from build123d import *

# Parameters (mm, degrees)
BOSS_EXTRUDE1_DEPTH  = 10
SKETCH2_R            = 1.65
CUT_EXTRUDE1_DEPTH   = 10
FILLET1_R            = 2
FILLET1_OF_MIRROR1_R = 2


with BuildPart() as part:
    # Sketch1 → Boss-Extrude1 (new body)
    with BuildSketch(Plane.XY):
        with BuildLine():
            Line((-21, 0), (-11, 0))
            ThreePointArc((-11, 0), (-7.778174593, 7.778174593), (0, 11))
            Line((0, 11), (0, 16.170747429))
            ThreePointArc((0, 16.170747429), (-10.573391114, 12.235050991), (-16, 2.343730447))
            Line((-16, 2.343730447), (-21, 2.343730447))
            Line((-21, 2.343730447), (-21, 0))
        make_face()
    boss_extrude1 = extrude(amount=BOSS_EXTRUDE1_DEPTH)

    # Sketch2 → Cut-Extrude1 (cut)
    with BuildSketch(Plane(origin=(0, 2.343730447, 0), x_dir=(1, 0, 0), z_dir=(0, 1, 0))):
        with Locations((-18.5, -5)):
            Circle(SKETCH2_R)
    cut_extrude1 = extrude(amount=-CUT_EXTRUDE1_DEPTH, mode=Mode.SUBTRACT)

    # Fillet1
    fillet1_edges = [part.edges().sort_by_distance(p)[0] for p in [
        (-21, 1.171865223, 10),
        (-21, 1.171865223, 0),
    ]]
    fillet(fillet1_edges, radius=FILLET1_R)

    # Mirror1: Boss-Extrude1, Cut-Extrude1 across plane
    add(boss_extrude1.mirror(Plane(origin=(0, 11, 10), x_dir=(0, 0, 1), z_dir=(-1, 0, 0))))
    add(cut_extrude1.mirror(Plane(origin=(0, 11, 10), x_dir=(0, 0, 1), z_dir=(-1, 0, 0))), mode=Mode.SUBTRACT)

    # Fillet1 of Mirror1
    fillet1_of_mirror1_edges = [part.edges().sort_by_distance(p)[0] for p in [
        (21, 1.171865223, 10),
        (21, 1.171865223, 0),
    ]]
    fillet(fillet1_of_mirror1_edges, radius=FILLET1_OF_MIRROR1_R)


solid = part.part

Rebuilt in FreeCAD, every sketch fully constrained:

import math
import FreeCAD as App
import Part
import Sketcher


def edges_at(feature, points):
    """Names of the edges that pass closest to the given points."""
    edges = feature.Shape.Edges
    near = lambda p: min(range(len(edges)), key=lambda i: edges[i].distToShape(Part.Vertex(*p))[0])
    return sorted({f"Edge{near(p) + 1}" for p in points})

doc = App.newDocument("Part")
body = doc.addObject("PartDesign::Body", "Body")

# Sketch on XY plane
sketch1 = doc.addObject("Sketcher::SketchObject", "Sketch")
body.addObject(sketch1)
sketch1.AttachmentSupport = (doc.XY_Plane, [""])
sketch1.MapMode = "FlatFace"
sketch1.addGeometry(Part.LineSegment(App.Vector(-21, 0, 0), App.Vector(-11, 0, 0)), False)
sketch1.addGeometry(Part.ArcOfCircle(Part.Circle(App.Vector(0, 0, 0), App.Vector(0, 0, 1), 11), math.radians(90), math.radians(180)), False)
sketch1.addGeometry(Part.LineSegment(App.Vector(0, 11, 0), App.Vector(0, 16.2, 0)), False)
sketch1.addGeometry(Part.ArcOfCircle(Part.Circle(App.Vector(0, 0, 0), App.Vector(0, 0, 1), 16.2), math.radians(90), math.radians(172)), False)
sketch1.addGeometry(Part.LineSegment(App.Vector(-16, 2.3, 0), App.Vector(-21, 2.3, 0)), False)
sketch1.addGeometry(Part.LineSegment(App.Vector(-21, 2.3, 0), App.Vector(-21, 0, 0)), False)
sketch1.addConstraint(Sketcher.Constraint("Coincident", 0, 2, 1, 2))
sketch1.addConstraint(Sketcher.Constraint("Coincident", 1, 1, 2, 1))
sketch1.addConstraint(Sketcher.Constraint("Coincident", 2, 2, 3, 1))
sketch1.addConstraint(Sketcher.Constraint("Coincident", 3, 2, 4, 1))
sketch1.addConstraint(Sketcher.Constraint("Coincident", 4, 2, 5, 1))
sketch1.addConstraint(Sketcher.Constraint("Coincident", 5, 2, 0, 1))
sketch1.addConstraint(Sketcher.Constraint("Horizontal", 0))
sketch1.addConstraint(Sketcher.Constraint("Vertical", 2))
sketch1.addConstraint(Sketcher.Constraint("Horizontal", 4))
sketch1.addConstraint(Sketcher.Constraint("Vertical", 5))
sketch1.addConstraint(Sketcher.Constraint("Coincident", 1, 3, -1, 1))
sketch1.addConstraint(Sketcher.Constraint("Coincident", 3, 3, -1, 1))
sketch1.addConstraint(Sketcher.Constraint("PointOnObject", 0, 2, -1))
sketch1.addConstraint(Sketcher.Constraint("PointOnObject", 1, 1, -2))
sketch1.addConstraint(Sketcher.Constraint("Radius", 1, 11.0))
sketch1.addConstraint(Sketcher.Constraint("DistanceX", 0, 1, 0, 2, 10.0))
sketch1.addConstraint(Sketcher.Constraint("DistanceX", 4, 2, 4, 1, 5.0))
sketch1.addConstraint(Sketcher.Constraint("Radius", 3, 16.170747))
pad1 = doc.addObject("PartDesign::Pad", "Pad")
body.addObject(pad1)
pad1.Profile = sketch1
pad1.Length = 10

# Sketch on XZ plane
sketch2 = doc.addObject("Sketcher::SketchObject", "Sketch001")
body.addObject(sketch2)
sketch2.AttachmentSupport = (doc.XZ_Plane, [""])
sketch2.MapMode = "FlatFace"
sketch2.AttachmentOffset = App.Placement(App.Vector(0, 0, -2.34373), App.Rotation())
sketch2.addGeometry(Part.Circle(App.Vector(-18.5, 5, 0), App.Vector(0, 0, 1), 1.6), False)
sketch2.addConstraint(Sketcher.Constraint("Diameter", 0, 3.3))
sketch2.addConstraint(Sketcher.Constraint("DistanceY", -1, 1, 0, 3, 5.0))
sketch2.addConstraint(Sketcher.Constraint("DistanceX", 0, 3, -1, 1, 18.5))
pocket1 = doc.addObject("PartDesign::Pocket", "Pocket")
body.addObject(pocket1)
pocket1.Profile = sketch2
pocket1.Length = 10
pocket1.Reversed = True
doc.recompute()

fillet = doc.addObject("PartDesign::Fillet", "Fillet")
body.addObject(fillet)
fillet.Base = (pocket1, edges_at(pocket1, [(-21, 1.172, 10), (-21, 1.172, 0)]))
fillet.Radius = 2
doc.recompute()

mirrored = doc.addObject("PartDesign::Mirrored", "Mirrored")
body.addObject(mirrored)
mirrored.Originals = [pad1, pocket1]
mirrored.MirrorPlane = (doc.YZ_Plane, [""])
body.Tip = mirrored
doc.recompute()

fillet2 = doc.addObject("PartDesign::Fillet", "Fillet001")
body.addObject(fillet2)
fillet2.Base = (mirrored, edges_at(mirrored, [(21, 1.172, 10), (21, 1.172, 0)]))
fillet2.Radius = 2

doc.recompute()
